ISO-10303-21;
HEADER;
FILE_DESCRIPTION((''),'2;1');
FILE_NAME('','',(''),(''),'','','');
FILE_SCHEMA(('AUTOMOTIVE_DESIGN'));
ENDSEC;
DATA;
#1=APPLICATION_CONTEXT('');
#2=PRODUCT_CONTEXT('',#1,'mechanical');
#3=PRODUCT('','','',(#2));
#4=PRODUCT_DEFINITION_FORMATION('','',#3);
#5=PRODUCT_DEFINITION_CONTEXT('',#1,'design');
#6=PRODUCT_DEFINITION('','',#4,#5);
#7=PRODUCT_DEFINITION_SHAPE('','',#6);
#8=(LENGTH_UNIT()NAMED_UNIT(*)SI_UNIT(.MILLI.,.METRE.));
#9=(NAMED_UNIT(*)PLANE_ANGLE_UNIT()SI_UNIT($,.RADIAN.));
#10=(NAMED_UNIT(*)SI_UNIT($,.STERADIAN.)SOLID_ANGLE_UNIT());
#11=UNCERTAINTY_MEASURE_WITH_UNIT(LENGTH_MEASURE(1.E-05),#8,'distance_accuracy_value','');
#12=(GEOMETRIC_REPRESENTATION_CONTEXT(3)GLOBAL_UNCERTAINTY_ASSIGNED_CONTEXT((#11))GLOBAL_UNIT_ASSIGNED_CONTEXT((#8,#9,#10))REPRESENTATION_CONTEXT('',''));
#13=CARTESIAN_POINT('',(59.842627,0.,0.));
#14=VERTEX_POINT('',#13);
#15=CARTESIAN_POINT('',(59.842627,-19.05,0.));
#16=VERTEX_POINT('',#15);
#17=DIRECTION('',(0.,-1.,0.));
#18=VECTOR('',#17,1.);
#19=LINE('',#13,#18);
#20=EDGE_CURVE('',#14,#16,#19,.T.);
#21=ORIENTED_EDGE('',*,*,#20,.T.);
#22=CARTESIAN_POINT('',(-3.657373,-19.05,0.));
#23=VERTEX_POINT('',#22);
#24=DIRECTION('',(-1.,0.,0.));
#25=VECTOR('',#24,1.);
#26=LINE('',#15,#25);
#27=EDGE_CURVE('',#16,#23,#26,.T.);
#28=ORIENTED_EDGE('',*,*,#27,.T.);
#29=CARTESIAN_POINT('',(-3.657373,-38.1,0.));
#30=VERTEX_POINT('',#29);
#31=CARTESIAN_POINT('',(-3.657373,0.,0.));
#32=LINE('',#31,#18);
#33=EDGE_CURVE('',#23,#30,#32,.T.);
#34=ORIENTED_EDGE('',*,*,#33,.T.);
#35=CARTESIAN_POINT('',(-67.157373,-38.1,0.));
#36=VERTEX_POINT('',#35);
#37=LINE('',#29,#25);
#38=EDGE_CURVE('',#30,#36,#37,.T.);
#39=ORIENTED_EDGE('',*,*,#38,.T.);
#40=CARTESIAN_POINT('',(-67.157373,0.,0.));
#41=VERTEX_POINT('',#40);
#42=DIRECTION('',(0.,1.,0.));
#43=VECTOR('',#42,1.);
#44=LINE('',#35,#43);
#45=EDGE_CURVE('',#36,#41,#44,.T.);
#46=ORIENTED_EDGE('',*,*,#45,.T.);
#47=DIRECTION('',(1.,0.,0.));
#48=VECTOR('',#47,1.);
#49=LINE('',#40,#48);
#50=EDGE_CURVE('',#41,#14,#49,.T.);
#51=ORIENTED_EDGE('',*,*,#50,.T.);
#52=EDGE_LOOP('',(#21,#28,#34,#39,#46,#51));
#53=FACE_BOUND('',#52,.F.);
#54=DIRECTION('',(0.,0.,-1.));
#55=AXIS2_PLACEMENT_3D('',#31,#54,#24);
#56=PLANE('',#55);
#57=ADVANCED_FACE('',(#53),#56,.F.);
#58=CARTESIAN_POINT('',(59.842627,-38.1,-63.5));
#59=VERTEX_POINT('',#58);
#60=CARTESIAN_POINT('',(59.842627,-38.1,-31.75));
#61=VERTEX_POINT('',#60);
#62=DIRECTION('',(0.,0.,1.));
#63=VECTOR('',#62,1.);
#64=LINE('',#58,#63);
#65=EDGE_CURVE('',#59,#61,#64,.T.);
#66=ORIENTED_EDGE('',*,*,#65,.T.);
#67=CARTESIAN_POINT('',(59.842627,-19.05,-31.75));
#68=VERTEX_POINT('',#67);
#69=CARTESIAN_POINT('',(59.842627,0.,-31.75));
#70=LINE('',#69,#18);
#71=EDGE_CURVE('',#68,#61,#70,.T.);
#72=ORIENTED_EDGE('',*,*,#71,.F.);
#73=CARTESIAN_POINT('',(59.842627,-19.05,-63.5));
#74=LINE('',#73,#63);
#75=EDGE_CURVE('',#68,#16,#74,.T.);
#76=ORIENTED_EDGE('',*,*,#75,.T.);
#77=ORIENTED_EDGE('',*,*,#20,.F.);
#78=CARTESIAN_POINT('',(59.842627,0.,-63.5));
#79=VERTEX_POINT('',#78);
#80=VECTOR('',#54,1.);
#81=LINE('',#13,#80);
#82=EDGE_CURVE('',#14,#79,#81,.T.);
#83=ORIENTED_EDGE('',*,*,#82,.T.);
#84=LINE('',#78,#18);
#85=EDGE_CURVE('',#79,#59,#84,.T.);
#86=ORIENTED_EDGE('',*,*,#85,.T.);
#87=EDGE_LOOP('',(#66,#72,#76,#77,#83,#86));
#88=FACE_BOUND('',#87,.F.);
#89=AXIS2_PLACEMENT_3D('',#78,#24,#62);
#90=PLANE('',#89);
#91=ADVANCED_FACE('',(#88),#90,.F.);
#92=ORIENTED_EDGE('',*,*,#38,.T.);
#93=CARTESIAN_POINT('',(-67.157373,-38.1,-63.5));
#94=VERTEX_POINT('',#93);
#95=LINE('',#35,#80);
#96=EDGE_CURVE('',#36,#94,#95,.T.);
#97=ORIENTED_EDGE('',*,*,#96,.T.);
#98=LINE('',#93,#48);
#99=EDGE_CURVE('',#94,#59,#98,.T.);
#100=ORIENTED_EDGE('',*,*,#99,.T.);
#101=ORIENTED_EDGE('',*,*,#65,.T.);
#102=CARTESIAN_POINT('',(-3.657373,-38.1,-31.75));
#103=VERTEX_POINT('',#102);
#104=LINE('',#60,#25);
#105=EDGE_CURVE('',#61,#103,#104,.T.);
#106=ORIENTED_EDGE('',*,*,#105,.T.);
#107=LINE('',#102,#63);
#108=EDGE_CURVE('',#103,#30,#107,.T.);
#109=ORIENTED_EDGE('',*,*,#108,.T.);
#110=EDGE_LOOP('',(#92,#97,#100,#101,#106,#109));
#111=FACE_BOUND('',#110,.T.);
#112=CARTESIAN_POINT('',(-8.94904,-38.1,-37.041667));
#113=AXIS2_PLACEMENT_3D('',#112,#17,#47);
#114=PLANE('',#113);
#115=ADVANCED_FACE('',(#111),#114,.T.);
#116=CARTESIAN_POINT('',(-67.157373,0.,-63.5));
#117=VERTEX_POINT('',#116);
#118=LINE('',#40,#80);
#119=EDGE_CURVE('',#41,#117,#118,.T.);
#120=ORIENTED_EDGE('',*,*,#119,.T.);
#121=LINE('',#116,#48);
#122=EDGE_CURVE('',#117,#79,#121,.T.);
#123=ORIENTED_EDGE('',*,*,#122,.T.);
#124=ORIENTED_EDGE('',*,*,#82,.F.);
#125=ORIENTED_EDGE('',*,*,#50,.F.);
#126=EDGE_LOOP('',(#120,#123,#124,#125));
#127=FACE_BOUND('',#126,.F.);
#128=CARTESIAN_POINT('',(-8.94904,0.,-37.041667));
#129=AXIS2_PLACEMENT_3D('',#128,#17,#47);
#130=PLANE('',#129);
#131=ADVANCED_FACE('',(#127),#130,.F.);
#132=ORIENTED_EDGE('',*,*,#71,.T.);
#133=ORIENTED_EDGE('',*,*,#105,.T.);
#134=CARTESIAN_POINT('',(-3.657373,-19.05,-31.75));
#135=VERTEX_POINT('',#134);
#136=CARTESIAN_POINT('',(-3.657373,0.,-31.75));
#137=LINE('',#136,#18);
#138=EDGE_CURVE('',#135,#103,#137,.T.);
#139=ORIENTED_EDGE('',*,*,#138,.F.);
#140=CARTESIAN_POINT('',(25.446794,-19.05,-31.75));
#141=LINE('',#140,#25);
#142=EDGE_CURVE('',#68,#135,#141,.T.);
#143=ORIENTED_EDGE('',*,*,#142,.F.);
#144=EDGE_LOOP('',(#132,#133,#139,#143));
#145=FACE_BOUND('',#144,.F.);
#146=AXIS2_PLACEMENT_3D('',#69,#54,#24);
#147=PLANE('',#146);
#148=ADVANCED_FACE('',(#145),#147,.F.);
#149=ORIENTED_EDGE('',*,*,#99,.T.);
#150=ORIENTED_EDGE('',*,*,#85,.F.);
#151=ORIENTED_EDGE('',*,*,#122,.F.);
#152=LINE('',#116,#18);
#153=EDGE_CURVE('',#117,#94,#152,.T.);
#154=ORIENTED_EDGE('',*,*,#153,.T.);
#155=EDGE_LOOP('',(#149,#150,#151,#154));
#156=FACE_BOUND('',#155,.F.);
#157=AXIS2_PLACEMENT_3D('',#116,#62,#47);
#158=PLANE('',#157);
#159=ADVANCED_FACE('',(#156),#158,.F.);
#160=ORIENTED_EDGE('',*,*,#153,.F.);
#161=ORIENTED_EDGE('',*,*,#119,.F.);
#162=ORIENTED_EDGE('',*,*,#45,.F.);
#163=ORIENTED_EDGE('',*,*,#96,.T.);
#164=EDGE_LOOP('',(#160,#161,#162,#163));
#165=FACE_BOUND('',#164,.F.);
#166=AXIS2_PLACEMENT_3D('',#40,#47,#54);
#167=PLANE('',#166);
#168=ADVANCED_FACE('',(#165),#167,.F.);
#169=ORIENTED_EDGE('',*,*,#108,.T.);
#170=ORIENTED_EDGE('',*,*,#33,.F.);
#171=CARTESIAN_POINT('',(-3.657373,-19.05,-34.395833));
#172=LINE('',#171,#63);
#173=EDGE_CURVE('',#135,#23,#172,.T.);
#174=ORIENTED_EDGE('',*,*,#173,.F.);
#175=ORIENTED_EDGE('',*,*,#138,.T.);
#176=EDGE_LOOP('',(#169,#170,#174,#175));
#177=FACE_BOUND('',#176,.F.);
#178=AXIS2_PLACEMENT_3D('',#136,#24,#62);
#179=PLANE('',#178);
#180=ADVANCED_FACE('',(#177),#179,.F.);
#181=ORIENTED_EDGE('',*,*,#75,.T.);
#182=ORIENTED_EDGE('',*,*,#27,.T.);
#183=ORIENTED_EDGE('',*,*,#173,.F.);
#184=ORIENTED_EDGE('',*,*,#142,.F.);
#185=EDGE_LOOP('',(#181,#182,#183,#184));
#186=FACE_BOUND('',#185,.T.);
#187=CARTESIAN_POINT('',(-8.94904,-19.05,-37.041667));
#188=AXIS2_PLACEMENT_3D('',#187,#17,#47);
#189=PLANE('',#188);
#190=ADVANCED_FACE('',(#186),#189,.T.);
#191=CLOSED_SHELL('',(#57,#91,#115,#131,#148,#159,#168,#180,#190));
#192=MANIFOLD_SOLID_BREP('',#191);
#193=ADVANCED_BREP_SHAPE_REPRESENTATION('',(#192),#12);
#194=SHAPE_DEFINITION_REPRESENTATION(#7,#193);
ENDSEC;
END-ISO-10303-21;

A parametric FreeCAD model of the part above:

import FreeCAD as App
import Part
import Sketcher
from FreeCAD import Vector
Q = App.Units.Quantity


def add_polygon(sketch, points):
    """Adds a closed chain of lines whose ends are joined by coincident constraints."""
    first, n = sketch.GeometryCount, len(points)
    for a, b in zip(points, points[1:] + points[:1]):
        sketch.addGeometry(Part.LineSegment(App.Vector(*a, 0), App.Vector(*b, 0)), False)
    for i in range(n):
        sketch.addConstraint(Sketcher.Constraint("Coincident", first + i, 2, first + (i + 1) % n, 1))

doc = App.newDocument("Part")
params = doc.addObject("Spreadsheet::Sheet", "Params")
for row, (alias, value) in enumerate([
    ("sketch1_width", "5 in"),
    ("pad1_length", "1.5 in"),
    ("sketch2_width", "5 in"),
    ("sketch2_height", "2.5 in"),
    ("pad2_length", "0.75 in"),
], start=1):
    params.set(f"A{row}", alias)
    params.set(f"B{row}", "=" + value)
    params.setAlias(f"B{row}", alias)

body = doc.addObject("PartDesign::Body", "Body")

sketch1 = body.newObject("Sketcher::SketchObject", "Sketch")
sketch1.AttachmentSupport = (doc.getObject("XZ_Plane"), [""])
sketch1.MapMode = "FlatFace"
add_polygon(sketch1, [(-67, 0), (-67, -64), (60, -64), (60, -32), (-4, -32), (-4, 0)])
sketch1.addConstraint([
    Sketcher.Constraint("Vertical", 0),
    Sketcher.Constraint("Horizontal", 1),
    Sketcher.Constraint("Vertical", 2),
    Sketcher.Constraint("Horizontal", 3),
    Sketcher.Constraint("Vertical", 4),
    Sketcher.Constraint("Horizontal", 5),
    Sketcher.Constraint("PointOnObject", 4, 2, -1),
    Sketcher.Constraint("Equal", 3, 5),
    Sketcher.Constraint("Equal", 5, 0),
    Sketcher.Constraint("Equal", 2, 4),
    Sketcher.Constraint("DistanceX", 1, 1, 1, 2, Q("5 in")),
    Sketcher.Constraint("DistanceX", 0, 2, -1, 1, 67.157373),
])
sketch1.setExpression("Constraints[16]", "Params.sketch1_width")
pad1 = body.newObject("PartDesign::Pad", "Pad")
pad1.Profile = sketch1
pad1.setExpression("Length", "Params.pad1_length")

sketch2 = body.newObject("Sketcher::SketchObject", "Sketch001")
sketch2.AttachmentSupport = (doc.getObject("XZ_Plane"), [""])
sketch2.MapMode = "FlatFace"
add_polygon(sketch2, [(-67, 0), (-67, -64), (60, -64), (60, 0)])
sketch2.addConstraint([
    Sketcher.Constraint("Vertical", 0),
    Sketcher.Constraint("Horizontal", 1),
    Sketcher.Constraint("Vertical", 2),
    Sketcher.Constraint("Horizontal", 3),
    Sketcher.Constraint("PointOnObject", 2, 2, -1),
    Sketcher.Constraint("DistanceX", 1, 1, 1, 2, Q("5 in")),
    Sketcher.Constraint("DistanceY", 0, 2, 0, 1, Q("2.5 in")),
    Sketcher.Constraint("DistanceX", 0, 2, -1, 1, 67.157373),
])
sketch2.setExpression("Constraints[9]", "Params.sketch2_width")
sketch2.setExpression("Constraints[10]", "Params.sketch2_height")
pad2 = body.newObject("PartDesign::Pad", "Pad001")
pad2.Profile = sketch2
pad2.setExpression("Length", "Params.pad2_length")

doc.recompute()
